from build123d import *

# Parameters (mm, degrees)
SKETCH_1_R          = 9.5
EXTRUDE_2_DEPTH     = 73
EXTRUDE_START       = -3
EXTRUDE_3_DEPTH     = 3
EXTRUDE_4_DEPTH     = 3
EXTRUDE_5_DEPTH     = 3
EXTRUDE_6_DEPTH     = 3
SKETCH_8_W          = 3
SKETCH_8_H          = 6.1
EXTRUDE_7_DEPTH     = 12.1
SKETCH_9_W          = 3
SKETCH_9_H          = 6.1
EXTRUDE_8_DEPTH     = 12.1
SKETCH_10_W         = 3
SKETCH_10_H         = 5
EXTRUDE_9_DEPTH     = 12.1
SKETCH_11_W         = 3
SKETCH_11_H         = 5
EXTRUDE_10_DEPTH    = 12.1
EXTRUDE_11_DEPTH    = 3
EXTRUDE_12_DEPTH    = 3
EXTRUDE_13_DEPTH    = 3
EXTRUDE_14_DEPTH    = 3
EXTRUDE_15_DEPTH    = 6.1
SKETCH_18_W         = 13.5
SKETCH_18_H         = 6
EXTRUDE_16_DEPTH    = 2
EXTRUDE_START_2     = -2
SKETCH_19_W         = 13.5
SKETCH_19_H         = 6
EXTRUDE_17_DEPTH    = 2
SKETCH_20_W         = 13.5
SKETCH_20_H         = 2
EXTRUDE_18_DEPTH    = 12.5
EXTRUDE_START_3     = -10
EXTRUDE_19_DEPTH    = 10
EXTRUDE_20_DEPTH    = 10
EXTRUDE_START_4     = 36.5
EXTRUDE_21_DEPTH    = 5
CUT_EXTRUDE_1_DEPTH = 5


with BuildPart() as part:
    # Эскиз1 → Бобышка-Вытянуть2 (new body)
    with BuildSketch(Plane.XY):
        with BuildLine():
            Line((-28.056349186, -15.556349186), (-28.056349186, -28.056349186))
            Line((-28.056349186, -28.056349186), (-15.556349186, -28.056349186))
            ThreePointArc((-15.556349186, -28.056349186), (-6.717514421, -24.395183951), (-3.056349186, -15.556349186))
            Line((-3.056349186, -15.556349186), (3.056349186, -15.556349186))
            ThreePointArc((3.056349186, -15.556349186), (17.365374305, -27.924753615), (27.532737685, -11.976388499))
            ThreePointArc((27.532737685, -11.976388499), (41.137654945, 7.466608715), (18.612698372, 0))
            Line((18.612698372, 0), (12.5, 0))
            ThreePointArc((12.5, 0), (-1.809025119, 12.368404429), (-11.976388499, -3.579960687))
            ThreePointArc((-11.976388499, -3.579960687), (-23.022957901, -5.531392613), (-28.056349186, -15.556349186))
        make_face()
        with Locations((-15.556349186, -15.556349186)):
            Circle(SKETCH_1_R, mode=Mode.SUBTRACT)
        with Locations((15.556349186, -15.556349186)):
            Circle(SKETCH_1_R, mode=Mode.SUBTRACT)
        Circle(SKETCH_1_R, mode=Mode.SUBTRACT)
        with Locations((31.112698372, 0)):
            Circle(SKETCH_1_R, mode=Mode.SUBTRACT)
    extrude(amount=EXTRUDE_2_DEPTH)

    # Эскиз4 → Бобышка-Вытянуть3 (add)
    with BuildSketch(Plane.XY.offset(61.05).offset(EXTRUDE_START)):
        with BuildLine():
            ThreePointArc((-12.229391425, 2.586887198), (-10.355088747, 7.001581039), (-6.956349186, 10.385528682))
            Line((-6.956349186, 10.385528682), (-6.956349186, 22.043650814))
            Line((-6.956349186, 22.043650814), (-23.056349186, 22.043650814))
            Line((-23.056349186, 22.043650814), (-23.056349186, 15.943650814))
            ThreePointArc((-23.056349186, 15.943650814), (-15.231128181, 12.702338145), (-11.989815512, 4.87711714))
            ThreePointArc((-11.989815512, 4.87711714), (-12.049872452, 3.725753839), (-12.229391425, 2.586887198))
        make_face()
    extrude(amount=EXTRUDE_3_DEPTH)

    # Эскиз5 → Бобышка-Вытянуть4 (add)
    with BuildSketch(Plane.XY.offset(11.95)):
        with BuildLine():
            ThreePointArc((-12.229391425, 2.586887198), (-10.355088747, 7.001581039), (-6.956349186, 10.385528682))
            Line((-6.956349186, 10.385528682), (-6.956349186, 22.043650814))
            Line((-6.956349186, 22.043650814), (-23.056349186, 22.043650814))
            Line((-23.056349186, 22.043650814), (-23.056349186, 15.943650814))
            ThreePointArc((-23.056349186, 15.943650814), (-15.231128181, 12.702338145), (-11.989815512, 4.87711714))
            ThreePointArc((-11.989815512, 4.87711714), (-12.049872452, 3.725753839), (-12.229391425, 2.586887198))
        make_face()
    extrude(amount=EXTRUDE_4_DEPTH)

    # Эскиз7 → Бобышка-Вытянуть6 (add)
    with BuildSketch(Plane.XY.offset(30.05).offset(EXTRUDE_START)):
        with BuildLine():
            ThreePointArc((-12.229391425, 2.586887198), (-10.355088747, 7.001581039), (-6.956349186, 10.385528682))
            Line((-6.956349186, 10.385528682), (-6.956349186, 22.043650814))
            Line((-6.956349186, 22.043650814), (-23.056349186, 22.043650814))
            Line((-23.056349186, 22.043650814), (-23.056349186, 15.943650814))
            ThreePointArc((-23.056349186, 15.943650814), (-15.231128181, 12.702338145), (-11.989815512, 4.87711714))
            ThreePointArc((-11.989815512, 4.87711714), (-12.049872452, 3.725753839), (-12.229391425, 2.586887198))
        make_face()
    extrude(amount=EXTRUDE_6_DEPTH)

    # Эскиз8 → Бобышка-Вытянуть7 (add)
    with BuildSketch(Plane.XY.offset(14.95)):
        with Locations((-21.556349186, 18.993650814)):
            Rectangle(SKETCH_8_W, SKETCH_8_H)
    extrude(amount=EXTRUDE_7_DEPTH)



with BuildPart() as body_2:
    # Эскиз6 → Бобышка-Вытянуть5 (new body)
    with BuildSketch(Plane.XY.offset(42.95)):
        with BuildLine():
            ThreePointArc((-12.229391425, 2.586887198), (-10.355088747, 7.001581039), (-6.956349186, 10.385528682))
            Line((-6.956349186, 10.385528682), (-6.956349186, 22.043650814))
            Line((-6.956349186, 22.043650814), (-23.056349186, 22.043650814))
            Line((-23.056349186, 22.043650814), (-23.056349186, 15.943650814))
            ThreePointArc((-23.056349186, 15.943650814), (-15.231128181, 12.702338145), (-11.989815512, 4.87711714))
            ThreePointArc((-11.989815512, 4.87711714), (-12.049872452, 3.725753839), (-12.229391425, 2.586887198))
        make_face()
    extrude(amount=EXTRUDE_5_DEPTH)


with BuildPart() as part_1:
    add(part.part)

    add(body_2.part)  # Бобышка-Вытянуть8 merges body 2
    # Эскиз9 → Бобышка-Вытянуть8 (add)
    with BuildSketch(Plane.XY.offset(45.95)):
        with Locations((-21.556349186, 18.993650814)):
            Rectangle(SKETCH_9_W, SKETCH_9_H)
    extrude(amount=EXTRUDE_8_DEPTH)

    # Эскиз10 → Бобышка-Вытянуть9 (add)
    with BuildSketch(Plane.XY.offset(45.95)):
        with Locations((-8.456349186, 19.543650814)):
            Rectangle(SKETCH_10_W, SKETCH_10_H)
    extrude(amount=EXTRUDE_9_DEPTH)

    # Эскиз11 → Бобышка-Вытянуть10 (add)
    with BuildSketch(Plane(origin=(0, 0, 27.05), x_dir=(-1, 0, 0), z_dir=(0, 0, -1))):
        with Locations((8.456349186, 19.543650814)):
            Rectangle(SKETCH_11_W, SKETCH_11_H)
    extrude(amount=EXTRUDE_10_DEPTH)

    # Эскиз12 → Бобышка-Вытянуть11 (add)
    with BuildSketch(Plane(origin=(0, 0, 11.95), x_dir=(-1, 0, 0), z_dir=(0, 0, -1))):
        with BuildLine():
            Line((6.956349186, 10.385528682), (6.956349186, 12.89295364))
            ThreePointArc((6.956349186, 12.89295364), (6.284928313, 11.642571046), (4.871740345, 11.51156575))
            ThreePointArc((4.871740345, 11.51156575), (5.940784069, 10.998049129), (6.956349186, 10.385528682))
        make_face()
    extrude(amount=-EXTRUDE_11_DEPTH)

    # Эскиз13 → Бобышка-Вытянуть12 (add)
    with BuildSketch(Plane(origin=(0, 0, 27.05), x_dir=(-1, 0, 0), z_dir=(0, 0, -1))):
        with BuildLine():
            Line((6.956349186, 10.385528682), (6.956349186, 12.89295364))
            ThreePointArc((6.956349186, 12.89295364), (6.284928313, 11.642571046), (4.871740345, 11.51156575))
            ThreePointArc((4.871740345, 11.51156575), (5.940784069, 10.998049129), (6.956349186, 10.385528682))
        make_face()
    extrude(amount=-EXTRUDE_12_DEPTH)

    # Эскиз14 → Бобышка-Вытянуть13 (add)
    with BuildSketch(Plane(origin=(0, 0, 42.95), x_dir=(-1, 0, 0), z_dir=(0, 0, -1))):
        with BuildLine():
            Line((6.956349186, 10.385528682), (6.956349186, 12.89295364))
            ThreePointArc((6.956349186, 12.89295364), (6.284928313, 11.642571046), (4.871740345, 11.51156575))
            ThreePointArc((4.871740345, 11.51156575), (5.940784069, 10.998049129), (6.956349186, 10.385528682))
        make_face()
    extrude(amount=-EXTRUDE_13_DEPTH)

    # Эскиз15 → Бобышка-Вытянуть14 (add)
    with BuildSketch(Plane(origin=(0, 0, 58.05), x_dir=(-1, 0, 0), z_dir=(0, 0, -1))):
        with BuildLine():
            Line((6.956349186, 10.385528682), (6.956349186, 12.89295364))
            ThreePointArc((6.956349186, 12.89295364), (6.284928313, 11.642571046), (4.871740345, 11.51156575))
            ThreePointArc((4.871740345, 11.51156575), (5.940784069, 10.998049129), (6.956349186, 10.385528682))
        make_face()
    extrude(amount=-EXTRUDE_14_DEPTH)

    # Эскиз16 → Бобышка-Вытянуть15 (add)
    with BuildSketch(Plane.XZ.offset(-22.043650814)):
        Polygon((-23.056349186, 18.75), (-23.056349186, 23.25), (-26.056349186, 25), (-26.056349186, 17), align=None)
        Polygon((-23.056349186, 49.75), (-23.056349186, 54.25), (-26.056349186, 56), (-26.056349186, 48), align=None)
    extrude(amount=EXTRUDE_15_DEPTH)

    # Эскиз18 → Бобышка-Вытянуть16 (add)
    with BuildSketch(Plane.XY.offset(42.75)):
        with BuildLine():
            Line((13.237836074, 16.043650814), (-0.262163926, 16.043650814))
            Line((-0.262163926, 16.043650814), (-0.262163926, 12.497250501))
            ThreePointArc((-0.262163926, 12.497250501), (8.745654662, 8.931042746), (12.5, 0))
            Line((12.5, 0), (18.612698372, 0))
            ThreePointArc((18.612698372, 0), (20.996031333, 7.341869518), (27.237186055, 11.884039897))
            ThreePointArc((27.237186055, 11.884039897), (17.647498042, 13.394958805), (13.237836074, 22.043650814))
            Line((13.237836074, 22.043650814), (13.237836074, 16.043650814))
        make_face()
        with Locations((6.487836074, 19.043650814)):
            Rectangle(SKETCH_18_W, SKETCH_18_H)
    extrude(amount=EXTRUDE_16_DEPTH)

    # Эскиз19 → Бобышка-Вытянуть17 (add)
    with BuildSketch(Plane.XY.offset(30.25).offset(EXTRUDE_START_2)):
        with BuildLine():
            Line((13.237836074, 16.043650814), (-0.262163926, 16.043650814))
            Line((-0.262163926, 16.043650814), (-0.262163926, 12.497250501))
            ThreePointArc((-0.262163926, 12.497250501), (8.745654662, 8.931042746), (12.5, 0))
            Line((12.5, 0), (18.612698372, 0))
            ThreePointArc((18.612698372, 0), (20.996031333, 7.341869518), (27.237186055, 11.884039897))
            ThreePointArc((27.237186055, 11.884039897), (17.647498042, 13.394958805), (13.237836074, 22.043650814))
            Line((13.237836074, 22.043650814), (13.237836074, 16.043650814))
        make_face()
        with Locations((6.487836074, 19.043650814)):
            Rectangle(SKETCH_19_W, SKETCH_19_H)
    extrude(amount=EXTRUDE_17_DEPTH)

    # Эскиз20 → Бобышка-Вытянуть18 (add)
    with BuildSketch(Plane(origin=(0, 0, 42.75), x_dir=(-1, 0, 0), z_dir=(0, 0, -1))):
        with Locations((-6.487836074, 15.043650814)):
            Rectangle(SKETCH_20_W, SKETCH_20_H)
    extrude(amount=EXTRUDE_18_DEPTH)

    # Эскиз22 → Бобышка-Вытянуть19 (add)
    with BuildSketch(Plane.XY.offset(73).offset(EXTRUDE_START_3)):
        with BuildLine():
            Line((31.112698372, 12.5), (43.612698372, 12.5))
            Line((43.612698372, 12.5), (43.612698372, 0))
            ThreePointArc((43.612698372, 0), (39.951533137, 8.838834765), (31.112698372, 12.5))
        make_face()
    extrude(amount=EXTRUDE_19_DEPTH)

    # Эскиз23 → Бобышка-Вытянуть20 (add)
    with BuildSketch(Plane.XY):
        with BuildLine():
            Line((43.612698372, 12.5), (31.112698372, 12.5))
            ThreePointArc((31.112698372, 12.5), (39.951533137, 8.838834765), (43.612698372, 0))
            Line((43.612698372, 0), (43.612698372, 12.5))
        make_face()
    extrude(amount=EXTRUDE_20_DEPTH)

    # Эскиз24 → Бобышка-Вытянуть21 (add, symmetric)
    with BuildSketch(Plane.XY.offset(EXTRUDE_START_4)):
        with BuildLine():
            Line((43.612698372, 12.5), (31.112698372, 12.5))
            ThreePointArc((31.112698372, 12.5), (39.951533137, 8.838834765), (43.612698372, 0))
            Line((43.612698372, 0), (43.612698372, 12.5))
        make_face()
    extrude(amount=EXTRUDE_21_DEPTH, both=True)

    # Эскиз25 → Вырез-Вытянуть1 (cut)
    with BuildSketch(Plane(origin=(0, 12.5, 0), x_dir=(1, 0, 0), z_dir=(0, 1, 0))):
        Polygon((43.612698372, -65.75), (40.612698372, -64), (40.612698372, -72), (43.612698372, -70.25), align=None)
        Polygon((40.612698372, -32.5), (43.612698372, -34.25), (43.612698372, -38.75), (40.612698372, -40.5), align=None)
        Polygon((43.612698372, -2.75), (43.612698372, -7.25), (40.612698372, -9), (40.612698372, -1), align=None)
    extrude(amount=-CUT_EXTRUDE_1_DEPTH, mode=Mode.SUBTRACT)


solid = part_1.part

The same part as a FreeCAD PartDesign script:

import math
import FreeCAD as App
import Part
import Sketcher

V = App.Vector


def add_polygon(sketch, points):
    """Adds a closed chain of lines whose ends are joined by coincident constraints."""
    first, n = sketch.GeometryCount, len(points)
    for a, b in zip(points, points[1:] + points[:1]):
        sketch.addGeometry(Part.LineSegment(App.Vector(*a, 0), App.Vector(*b, 0)), False)
    for i in range(n):
        sketch.addConstraint(Sketcher.Constraint("Coincident", first + i, 2, first + (i + 1) % n, 1))

doc = App.newDocument("Part")
body = doc.addObject("PartDesign::Body", "Body")

sketch1 = body.newObject("Sketcher::SketchObject", "Sketch")
sketch1.AttachmentSupport = (doc.getObject("XY_Plane"), [""])
sketch1.MapMode = "FlatFace"
sketch1.addGeometry(Part.LineSegment(V(-28, -16, 0), V(-28, -28, 0)), False)
sketch1.addGeometry(Part.LineSegment(V(-28, -28, 0), V(-16, -28, 0)), False)
sketch1.addGeometry(Part.ArcOfCircle(Part.Circle(V(-16, -16, 0), V(0, 0, 1), 12), math.radians(-90), math.radians(0)), False)
sketch1.addGeometry(Part.LineSegment(V(-3, -16, 0), V(3, -16, 0)), False)
sketch1.addGeometry(Part.ArcOfCircle(Part.Circle(V(16, -16, 0), V(0, 0, 1), 12), math.radians(180), math.radians(377)), False)
sketch1.addGeometry(Part.ArcOfCircle(Part.Circle(V(31, 0, 0), V(0, 0, 1), 12), math.radians(-107), math.radians(180)), False)
sketch1.addGeometry(Part.LineSegment(V(19, 0, 0), V(12, 0, 0)), False)
sketch1.addGeometry(Part.ArcOfCircle(Part.Circle(V(0, 0, 0), V(0, 0, 1), 12), math.radians(0), math.radians(197)), False)
sketch1.addGeometry(Part.ArcOfCircle(Part.Circle(V(-16, -16, 0), V(0, 0, 1), 12), math.radians(73), math.radians(180)), False)
sketch1.addGeometry(Part.Circle(V(-16, -16, 0), V(0, 0, 1), 10), False)
sketch1.addGeometry(Part.Circle(V(16, -16, 0), V(0, 0, 1), 10), False)
sketch1.addGeometry(Part.Circle(V(0, 0, 0), V(0, 0, 1), 10), False)
sketch1.addGeometry(Part.Circle(V(31, 0, 0), V(0, 0, 1), 10), False)
sketch1.addConstraint(Sketcher.Constraint("Coincident", 0, 2, 1, 1))
sketch1.addConstraint(Sketcher.Constraint("Tangent", 1, 2, 2, 1))
sketch1.addConstraint(Sketcher.Constraint("Coincident", 2, 2, 3, 1))
sketch1.addConstraint(Sketcher.Constraint("Coincident", 3, 2, 4, 1))
sketch1.addConstraint(Sketcher.Constraint("Coincident", 4, 2, 5, 1))
sketch1.addConstraint(Sketcher.Constraint("Coincident", 5, 2, 6, 1))
sketch1.addConstraint(Sketcher.Constraint("Coincident", 6, 2, 7, 1))
sketch1.addConstraint(Sketcher.Constraint("Coincident", 7, 2, 8, 1))
sketch1.addConstraint(Sketcher.Constraint("Tangent", 8, 2, 0, 1))
sketch1.addConstraint(Sketcher.Constraint("Vertical", 0))
sketch1.addConstraint(Sketcher.Constraint("Horizontal", 1))
sketch1.addConstraint(Sketcher.Constraint("Horizontal", 3))
sketch1.addConstraint(Sketcher.Constraint("Horizontal", 6))
sketch1.addConstraint(Sketcher.Constraint("Coincident", 7, 3, -1, 1))
sketch1.addConstraint(Sketcher.Constraint("Coincident", 11, 3, -1, 1))
sketch1.addConstraint(Sketcher.Constraint("Coincident", 8, 3, 2, 3))
sketch1.addConstraint(Sketcher.Constraint("Coincident", 9, 3, 2, 3))
sketch1.addConstraint(Sketcher.Constraint("Coincident", 10, 3, 4, 3))
sketch1.addConstraint(Sketcher.Constraint("Coincident", 12, 3, 5, 3))
sketch1.addConstraint(Sketcher.Constraint("Equal", 2, 4))
sketch1.addConstraint(Sketcher.Constraint("Equal", 4, 5))
sketch1.addConstraint(Sketcher.Constraint("Equal", 5, 7))
sketch1.addConstraint(Sketcher.Constraint("Equal", 7, 8))
sketch1.addConstraint(Sketcher.Constraint("Equal", 9, 10))
sketch1.addConstraint(Sketcher.Constraint("Equal", 10, 11))
sketch1.addConstraint(Sketcher.Constraint("Equal", 11, 12))
sketch1.addConstraint(Sketcher.Constraint("Symmetric", 2, 3, 4, 3, -2))
sketch1.addConstraint(Sketcher.Constraint("PointOnObject", 5, 3, -1))
sketch1.addConstraint(Sketcher.Constraint("PointOnObject", 5, 2, -1))
sketch1.addConstraint(Sketcher.Constraint("Horizontal", 10, 3, 2, 2))
sketch1.addConstraint(Sketcher.Constraint("Equal", 3, 6))
sketch1.addConstraint(Sketcher.Constraint("Diameter", 9, 19.0))
sketch1.addConstraint(Sketcher.Constraint("Radius", 2, 12.5))
sketch1.addConstraint(Sketcher.Constraint("DistanceX", 3, 1, 3, 2, 6.112698))
sketch1.addConstraint(Sketcher.Constraint("DistanceY", 2, 3, -1, 1, 15.556349))
pad1 = body.newObject("PartDesign::Pad", "Pad")
pad1.Profile = sketch1
pad1.Length = 73

sketch2 = body.newObject("Sketcher::SketchObject", "Sketch001")
sketch2.AttachmentSupport = (doc.getObject("XY_Plane"), [""])
sketch2.MapMode = "FlatFace"
sketch2.AttachmentOffset = App.Placement(V(0, 0, 58.05), App.Rotation())
sketch2.addGeometry(Part.ArcOfCircle(Part.Circle(V(0, 0, 0), V(0, 0, 1), 12.5), math.radians(124), math.radians(168)), False)
sketch2.addGeometry(Part.LineSegment(V(-7, 10.4, 0), V(-7, 22, 0)), False)
sketch2.addGeometry(Part.LineSegment(V(-7, 22, 0), V(-23.1, 22, 0)), False)
sketch2.addGeometry(Part.LineSegment(V(-23.1, 22, 0), V(-23.1, 15.9, 0)), False)
sketch2.addGeometry(Part.ArcOfCircle(Part.Circle(V(-23.1, 4.9, 0), V(0, 0, 1), 11.1), math.radians(0), math.radians(90)), False)
sketch2.addGeometry(Part.ArcOfCircle(Part.Circle(V(-23.1, 4.9, 0), V(0, 0, 1), 11.1), math.radians(-11.94), math.radians(0)), False)
sketch2.addConstraint(Sketcher.Constraint("Coincident", 0, 1, 1, 1))
sketch2.addConstraint(Sketcher.Constraint("Coincident", 1, 2, 2, 1))
sketch2.addConstraint(Sketcher.Constraint("Coincident", 2, 2, 3, 1))
sketch2.addConstraint(Sketcher.Constraint("Coincident", 3, 2, 4, 2))
sketch2.addConstraint(Sketcher.Constraint("Tangent", 4, 1, 5, 2))
sketch2.addConstraint(Sketcher.Constraint("Tangent", 5, 1, 0, 2))
sketch2.addConstraint(Sketcher.Constraint("Vertical", 1))
sketch2.addConstraint(Sketcher.Constraint("Horizontal", 2))
sketch2.addConstraint(Sketcher.Constraint("Vertical", 3))
sketch2.addConstraint(Sketcher.Constraint("Coincident", 0, 3, -1, 1))
sketch2.addConstraint(Sketcher.Constraint("Equal", 4, 5))
sketch2.addConstraint(Sketcher.Constraint("Horizontal", 5, 3, 4, 1))
sketch2.addConstraint(Sketcher.Constraint("Vertical", 5, 3, 2, 2))
sketch2.addConstraint(Sketcher.Constraint("Radius", 0, 12.5))
sketch2.addConstraint(Sketcher.Constraint("DistanceX", 2, 2, 2, 1, 16.1))
sketch2.addConstraint(Sketcher.Constraint("DistanceY", 3, 2, 3, 1, 6.1))
sketch2.addConstraint(Sketcher.Constraint("Radius", 4, 11.066534))
sketch2.addConstraint(Sketcher.Constraint("DistanceY", 1, 1, 1, 2, 11.658122))
pad2 = body.newObject("PartDesign::Pad", "Pad001")
pad2.Profile = sketch2
pad2.Length = 3

sketch3 = body.newObject("Sketcher::SketchObject", "Sketch002")
sketch3.AttachmentSupport = (doc.getObject("XY_Plane"), [""])
sketch3.MapMode = "FlatFace"
sketch3.AttachmentOffset = App.Placement(V(0, 0, 11.95), App.Rotation())
sketch3.addGeometry(Part.ArcOfCircle(Part.Circle(V(0, 0, 0), V(0, 0, 1), 12.5), math.radians(124), math.radians(168)), False)
sketch3.addGeometry(Part.LineSegment(V(-7, 10.4, 0), V(-7, 22, 0)), False)
sketch3.addGeometry(Part.LineSegment(V(-7, 22, 0), V(-23.1, 22, 0)), False)
sketch3.addGeometry(Part.LineSegment(V(-23.1, 22, 0), V(-23.1, 15.9, 0)), False)
sketch3.addGeometry(Part.ArcOfCircle(Part.Circle(V(-23.1, 4.9, 0), V(0, 0, 1), 11.1), math.radians(0), math.radians(90)), False)
sketch3.addGeometry(Part.ArcOfCircle(Part.Circle(V(-23.1, 4.9, 0), V(0, 0, 1), 11.1), math.radians(-11.94), math.radians(0)), False)
sketch3.addConstraint(Sketcher.Constraint("Coincident", 0, 1, 1, 1))
sketch3.addConstraint(Sketcher.Constraint("Coincident", 1, 2, 2, 1))
sketch3.addConstraint(Sketcher.Constraint("Coincident", 2, 2, 3, 1))
sketch3.addConstraint(Sketcher.Constraint("Coincident", 3, 2, 4, 2))
sketch3.addConstraint(Sketcher.Constraint("Tangent", 4, 1, 5, 2))
sketch3.addConstraint(Sketcher.Constraint("Tangent", 5, 1, 0, 2))
sketch3.addConstraint(Sketcher.Constraint("Vertical", 1))
sketch3.addConstraint(Sketcher.Constraint("Horizontal", 2))
sketch3.addConstraint(Sketcher.Constraint("Vertical", 3))
sketch3.addConstraint(Sketcher.Constraint("Coincident", 0, 3, -1, 1))
sketch3.addConstraint(Sketcher.Constraint("Equal", 4, 5))
sketch3.addConstraint(Sketcher.Constraint("Horizontal", 5, 3, 4, 1))
sketch3.addConstraint(Sketcher.Constraint("Vertical", 5, 3, 2, 2))
sketch3.addConstraint(Sketcher.Constraint("Radius", 0, 12.5))
sketch3.addConstraint(Sketcher.Constraint("DistanceX", 2, 2, 2, 1, 16.1))
sketch3.addConstraint(Sketcher.Constraint("DistanceY", 3, 2, 3, 1, 6.1))
sketch3.addConstraint(Sketcher.Constraint("Radius", 4, 11.066534))
sketch3.addConstraint(Sketcher.Constraint("DistanceY", 1, 1, 1, 2, 11.658122))
pad3 = body.newObject("PartDesign::Pad", "Pad002")
pad3.Profile = sketch3
pad3.Length = 3

sketch4 = body.newObject("Sketcher::SketchObject", "Sketch003")
sketch4.AttachmentSupport = (doc.getObject("XY_Plane"), [""])
sketch4.MapMode = "FlatFace"
sketch4.AttachmentOffset = App.Placement(V(0, 0, 27.05), App.Rotation())
sketch4.addGeometry(Part.ArcOfCircle(Part.Circle(V(0, 0, 0), V(0, 0, 1), 12.5), math.radians(124), math.radians(168)), False)
sketch4.addGeometry(Part.LineSegment(V(-7, 10.4, 0), V(-7, 22, 0)), False)
sketch4.addGeometry(Part.LineSegment(V(-7, 22, 0), V(-23.1, 22, 0)), False)
sketch4.addGeometry(Part.LineSegment(V(-23.1, 22, 0), V(-23.1, 15.9, 0)), False)
sketch4.addGeometry(Part.ArcOfCircle(Part.Circle(V(-23.1, 4.9, 0), V(0, 0, 1), 11.1), math.radians(0), math.radians(90)), False)
sketch4.addGeometry(Part.ArcOfCircle(Part.Circle(V(-23.1, 4.9, 0), V(0, 0, 1), 11.1), math.radians(-11.94), math.radians(0)), False)
sketch4.addConstraint(Sketcher.Constraint("Coincident", 0, 1, 1, 1))
sketch4.addConstraint(Sketcher.Constraint("Coincident", 1, 2, 2, 1))
sketch4.addConstraint(Sketcher.Constraint("Coincident", 2, 2, 3, 1))
sketch4.addConstraint(Sketcher.Constraint("Coincident", 3, 2, 4, 2))
sketch4.addConstraint(Sketcher.Constraint("Tangent", 4, 1, 5, 2))
sketch4.addConstraint(Sketcher.Constraint("Tangent", 5, 1, 0, 2))
sketch4.addConstraint(Sketcher.Constraint("Vertical", 1))
sketch4.addConstraint(Sketcher.Constraint("Horizontal", 2))
sketch4.addConstraint(Sketcher.Constraint("Vertical", 3))
sketch4.addConstraint(Sketcher.Constraint("Coincident", 0, 3, -1, 1))
sketch4.addConstraint(Sketcher.Constraint("Equal", 4, 5))
sketch4.addConstraint(Sketcher.Constraint("Horizontal", 5, 3, 4, 1))
sketch4.addConstraint(Sketcher.Constraint("Vertical", 5, 3, 2, 2))
sketch4.addConstraint(Sketcher.Constraint("Radius", 0, 12.5))
sketch4.addConstraint(Sketcher.Constraint("DistanceX", 2, 2, 2, 1, 16.1))
sketch4.addConstraint(Sketcher.Constraint("DistanceY", 3, 2, 3, 1, 6.1))
sketch4.addConstraint(Sketcher.Constraint("Radius", 4, 11.066534))
sketch4.addConstraint(Sketcher.Constraint("DistanceY", 1, 1, 1, 2, 11.658122))
pad4 = body.newObject("PartDesign::Pad", "Pad003")
pad4.Profile = sketch4
pad4.Length = 3

sketch5 = body.newObject("Sketcher::SketchObject", "Sketch004")
sketch5.AttachmentSupport = (doc.getObject("XY_Plane"), [""])
sketch5.MapMode = "FlatFace"
sketch5.AttachmentOffset = App.Placement(V(0, 0, 14.95), App.Rotation())
add_polygon(sketch5, [(-23.1, 22), (-23.1, 15.9), (-20.1, 15.9), (-20.1, 22)])
sketch5.addConstraint(Sketcher.Constraint("Vertical", 0))
sketch5.addConstraint(Sketcher.Constraint("Horizontal", 1))
sketch5.addConstraint(Sketcher.Constraint("Vertical", 2))
sketch5.addConstraint(Sketcher.Constraint("Horizontal", 3))
sketch5.addConstraint(Sketcher.Constraint("DistanceX", 1, 1, 1, 2, 3.0))
sketch5.addConstraint(Sketcher.Constraint("DistanceY", 0, 2, 0, 1, 6.1))
sketch5.addConstraint(Sketcher.Constraint("DistanceX", 0, 2, -1, 1, 23.056349))
sketch5.addConstraint(Sketcher.Constraint("DistanceY", -1, 1, 0, 2, 15.943651))
pad5 = body.newObject("PartDesign::Pad", "Pad004")
pad5.Profile = sketch5
pad5.Length = 12.1
body2 = doc.addObject("PartDesign::Body", "Body001")

sketch6 = body2.newObject("Sketcher::SketchObject", "Sketch005")
sketch6.AttachmentSupport = (doc.getObject("XY_Plane001"), [""])
sketch6.MapMode = "FlatFace"
sketch6.AttachmentOffset = App.Placement(V(0, 0, 42.95), App.Rotation())
sketch6.addGeometry(Part.ArcOfCircle(Part.Circle(V(0, 0, 0), V(0, 0, 1), 12.5), math.radians(124), math.radians(168)), False)
sketch6.addGeometry(Part.LineSegment(V(-7, 10.4, 0), V(-7, 22, 0)), False)
sketch6.addGeometry(Part.LineSegment(V(-7, 22, 0), V(-23.1, 22, 0)), False)
sketch6.addGeometry(Part.LineSegment(V(-23.1, 22, 0), V(-23.1, 15.9, 0)), False)
sketch6.addGeometry(Part.ArcOfCircle(Part.Circle(V(-23.1, 4.9, 0), V(0, 0, 1), 11.1), math.radians(0), math.radians(90)), False)
sketch6.addGeometry(Part.ArcOfCircle(Part.Circle(V(-23.1, 4.9, 0), V(0, 0, 1), 11.1), math.radians(-11.94), math.radians(0)), False)
sketch6.addConstraint(Sketcher.Constraint("Coincident", 0, 1, 1, 1))
sketch6.addConstraint(Sketcher.Constraint("Coincident", 1, 2, 2, 1))
sketch6.addConstraint(Sketcher.Constraint("Coincident", 2, 2, 3, 1))
sketch6.addConstraint(Sketcher.Constraint("Coincident", 3, 2, 4, 2))
sketch6.addConstraint(Sketcher.Constraint("Tangent", 4, 1, 5, 2))
sketch6.addConstraint(Sketcher.Constraint("Tangent", 5, 1, 0, 2))
sketch6.addConstraint(Sketcher.Constraint("Vertical", 1))
sketch6.addConstraint(Sketcher.Constraint("Horizontal", 2))
sketch6.addConstraint(Sketcher.Constraint("Vertical", 3))
sketch6.addConstraint(Sketcher.Constraint("Coincident", 0, 3, -1, 1))
sketch6.addConstraint(Sketcher.Constraint("Equal", 4, 5))
sketch6.addConstraint(Sketcher.Constraint("Horizontal", 5, 3, 4, 1))
sketch6.addConstraint(Sketcher.Constraint("Vertical", 5, 3, 2, 2))
sketch6.addConstraint(Sketcher.Constraint("Radius", 0, 12.5))
sketch6.addConstraint(Sketcher.Constraint("DistanceX", 2, 2, 2, 1, 16.1))
sketch6.addConstraint(Sketcher.Constraint("DistanceY", 3, 2, 3, 1, 6.1))
sketch6.addConstraint(Sketcher.Constraint("Radius", 4, 11.066534))
sketch6.addConstraint(Sketcher.Constraint("DistanceY", 1, 1, 1, 2, 11.658122))
pad6 = body2.newObject("PartDesign::Pad", "Pad005")
pad6.Profile = sketch6
pad6.Length = 3
doc.recompute()

boolean = body.newObject("PartDesign::Boolean", "Boolean")
boolean.Type = "Fuse"
boolean.addObjects([body2])

sketch7 = body.newObject("Sketcher::SketchObject", "Sketch006")
sketch7.AttachmentSupport = (doc.getObject("XY_Plane"), [""])
sketch7.MapMode = "FlatFace"
sketch7.AttachmentOffset = App.Placement(V(0, 0, 45.95), App.Rotation())
add_polygon(sketch7, [(-23.1, 22), (-23.1, 15.9), (-20.1, 15.9), (-20.1, 22)])
sketch7.addConstraint(Sketcher.Constraint("Vertical", 0))
sketch7.addConstraint(Sketcher.Constraint("Horizontal", 1))
sketch7.addConstraint(Sketcher.Constraint("Vertical", 2))
sketch7.addConstraint(Sketcher.Constraint("Horizontal", 3))
sketch7.addConstraint(Sketcher.Constraint("DistanceX", 1, 1, 1, 2, 3.0))
sketch7.addConstraint(Sketcher.Constraint("DistanceY", 0, 2, 0, 1, 6.1))
sketch7.addConstraint(Sketcher.Constraint("DistanceX", 0, 2, -1, 1, 23.056349))
sketch7.addConstraint(Sketcher.Constraint("DistanceY", -1, 1, 0, 2, 15.943651))
pad7 = body.newObject("PartDesign::Pad", "Pad006")
pad7.Profile = sketch7
pad7.Length = 12.1

sketch8 = body.newObject("Sketcher::SketchObject", "Sketch007")
sketch8.AttachmentSupport = (doc.getObject("XY_Plane"), [""])
sketch8.MapMode = "FlatFace"
sketch8.AttachmentOffset = App.Placement(V(0, 0, 45.95), App.Rotation())
add_polygon(sketch8, [(-10, 22), (-10, 17), (-7, 17), (-7, 22)])
sketch8.addConstraint(Sketcher.Constraint("Vertical", 0))
sketch8.addConstraint(Sketcher.Constraint("Horizontal", 1))
sketch8.addConstraint(Sketcher.Constraint("Vertical", 2))
sketch8.addConstraint(Sketcher.Constraint("Horizontal", 3))
sketch8.addConstraint(Sketcher.Constraint("DistanceX", 1, 1, 1, 2, 3.0))
sketch8.addConstraint(Sketcher.Constraint("DistanceY", 0, 2, 0, 1, 5.0))
sketch8.addConstraint(Sketcher.Constraint("DistanceX", 0, 2, -1, 1, 9.956349))
sketch8.addConstraint(Sketcher.Constraint("DistanceY", -1, 1, 0, 2, 17.043651))
pad8 = body.newObject("PartDesign::Pad", "Pad007")
pad8.Profile = sketch8
pad8.Length = 12.1

sketch9 = body.newObject("Sketcher::SketchObject", "Sketch008")
sketch9.AttachmentSupport = (doc.getObject("XY_Plane"), [""])
sketch9.MapMode = "FlatFace"
sketch9.AttachmentOffset = App.Placement(V(0, 0, 27.05), App.Rotation())
add_polygon(sketch9, [(-7, 22), (-7, 17), (-10, 17), (-10, 22)])
sketch9.addConstraint(Sketcher.Constraint("Vertical", 0))
sketch9.addConstraint(Sketcher.Constraint("Horizontal", 1))
sketch9.addConstraint(Sketcher.Constraint("Vertical", 2))
sketch9.addConstraint(Sketcher.Constraint("Horizontal", 3))
sketch9.addConstraint(Sketcher.Constraint("DistanceX", 1, 2, 1, 1, 3.0))
sketch9.addConstraint(Sketcher.Constraint("DistanceY", 0, 2, 0, 1, 5.0))
sketch9.addConstraint(Sketcher.Constraint("DistanceX", 0, 2, -1, 1, 6.956349))
sketch9.addConstraint(Sketcher.Constraint("DistanceY", -1, 1, 0, 2, 17.043651))
pad9 = body.newObject("PartDesign::Pad", "Pad008")
pad9.Profile = sketch9
pad9.Length = 12.1
pad9.Reversed = True

sketch10 = body.newObject("Sketcher::SketchObject", "Sketch009")
sketch10.AttachmentSupport = (doc.getObject("XY_Plane"), [""])
sketch10.MapMode = "FlatFace"
sketch10.AttachmentOffset = App.Placement(V(0, 0, 11.95), App.Rotation())
sketch10.addGeometry(Part.LineSegment(V(-7, 10.4, 0), V(-7, 12.9, 0)), False)
sketch10.addGeometry(Part.ArcOfCircle(Part.Circle(V(-5.5, 12.9, 0), V(0, 0, 1), 1.5), math.radians(180), math.radians(293)), False)
sketch10.addGeometry(Part.ArcOfCircle(Part.Circle(V(0, 0, 0), V(0, 0, 1), 12.5), math.radians(112.94), math.radians(123.81)), False)
sketch10.addConstraint(Sketcher.Constraint("Tangent", 0, 2, 1, 1))
sketch10.addConstraint(Sketcher.Constraint("Tangent", 1, 2, 2, 1))
sketch10.addConstraint(Sketcher.Constraint("Coincident", 2, 2, 0, 1))
sketch10.addConstraint(Sketcher.Constraint("Vertical", 0))
sketch10.addConstraint(Sketcher.Constraint("Coincident", 2, 3, -1, 1))
sketch10.addConstraint(Sketcher.Constraint("Radius", 1, 1.5))
sketch10.addConstraint(Sketcher.Constraint("Radius", 2, 12.5))
sketch10.addConstraint(Sketcher.Constraint("DistanceY", 0, 1, 0, 2, 2.507425))
pad10 = body.newObject("PartDesign::Pad", "Pad009")
pad10.Profile = sketch10
pad10.Length = 3

sketch11 = body.newObject("Sketcher::SketchObject", "Sketch010")
sketch11.AttachmentSupport = (doc.getObject("XY_Plane"), [""])
sketch11.MapMode = "FlatFace"
sketch11.AttachmentOffset = App.Placement(V(0, 0, 27.05), App.Rotation())
sketch11.addGeometry(Part.LineSegment(V(-7, 10.4, 0), V(-7, 12.9, 0)), False)
sketch11.addGeometry(Part.ArcOfCircle(Part.Circle(V(-5.5, 12.9, 0), V(0, 0, 1), 1.5), math.radians(180), math.radians(293)), False)
sketch11.addGeometry(Part.ArcOfCircle(Part.Circle(V(0, 0, 0), V(0, 0, 1), 12.5), math.radians(112.94), math.radians(123.81)), False)
sketch11.addConstraint(Sketcher.Constraint("Tangent", 0, 2, 1, 1))
sketch11.addConstraint(Sketcher.Constraint("Tangent", 1, 2, 2, 1))
sketch11.addConstraint(Sketcher.Constraint("Coincident", 2, 2, 0, 1))
sketch11.addConstraint(Sketcher.Constraint("Vertical", 0))
sketch11.addConstraint(Sketcher.Constraint("Coincident", 2, 3, -1, 1))
sketch11.addConstraint(Sketcher.Constraint("Radius", 1, 1.5))
sketch11.addConstraint(Sketcher.Constraint("Radius", 2, 12.5))
sketch11.addConstraint(Sketcher.Constraint("DistanceY", 0, 1, 0, 2, 2.507425))
pad11 = body.newObject("PartDesign::Pad", "Pad010")
pad11.Profile = sketch11
pad11.Length = 3

sketch12 = body.newObject("Sketcher::SketchObject", "Sketch011")
sketch12.AttachmentSupport = (doc.getObject("XY_Plane"), [""])
sketch12.MapMode = "FlatFace"
sketch12.AttachmentOffset = App.Placement(V(0, 0, 42.95), App.Rotation())
sketch12.addGeometry(Part.LineSegment(V(-7, 10.4, 0), V(-7, 12.9, 0)), False)
sketch12.addGeometry(Part.ArcOfCircle(Part.Circle(V(-5.5, 12.9, 0), V(0, 0, 1), 1.5), math.radians(180), math.radians(293)), False)
sketch12.addGeometry(Part.ArcOfCircle(Part.Circle(V(0, 0, 0), V(0, 0, 1), 12.5), math.radians(112.94), math.radians(123.81)), False)
sketch12.addConstraint(Sketcher.Constraint("Tangent", 0, 2, 1, 1))
sketch12.addConstraint(Sketcher.Constraint("Tangent", 1, 2, 2, 1))
sketch12.addConstraint(Sketcher.Constraint("Coincident", 2, 2, 0, 1))
sketch12.addConstraint(Sketcher.Constraint("Vertical", 0))
sketch12.addConstraint(Sketcher.Constraint("Coincident", 2, 3, -1, 1))
sketch12.addConstraint(Sketcher.Constraint("Radius", 1, 1.5))
sketch12.addConstraint(Sketcher.Constraint("Radius", 2, 12.5))
sketch12.addConstraint(Sketcher.Constraint("DistanceY", 0, 1, 0, 2, 2.507425))
pad12 = body.newObject("PartDesign::Pad", "Pad011")
pad12.Profile = sketch12
pad12.Length = 3

sketch13 = body.newObject("Sketcher::SketchObject", "Sketch012")
sketch13.AttachmentSupport = (doc.getObject("XY_Plane"), [""])
sketch13.MapMode = "FlatFace"
sketch13.AttachmentOffset = App.Placement(V(0, 0, 58.05), App.Rotation())
sketch13.addGeometry(Part.LineSegment(V(-7, 10.4, 0), V(-7, 12.9, 0)), False)
sketch13.addGeometry(Part.ArcOfCircle(Part.Circle(V(-5.5, 12.9, 0), V(0, 0, 1), 1.5), math.radians(180), math.radians(293)), False)
sketch13.addGeometry(Part.ArcOfCircle(Part.Circle(V(0, 0, 0), V(0, 0, 1), 12.5), math.radians(112.94), math.radians(123.81)), False)
sketch13.addConstraint(Sketcher.Constraint("Tangent", 0, 2, 1, 1))
sketch13.addConstraint(Sketcher.Constraint("Tangent", 1, 2, 2, 1))
sketch13.addConstraint(Sketcher.Constraint("Coincident", 2, 2, 0, 1))
sketch13.addConstraint(Sketcher.Constraint("Vertical", 0))
sketch13.addConstraint(Sketcher.Constraint("Coincident", 2, 3, -1, 1))
sketch13.addConstraint(Sketcher.Constraint("Radius", 1, 1.5))
sketch13.addConstraint(Sketcher.Constraint("Radius", 2, 12.5))
sketch13.addConstraint(Sketcher.Constraint("DistanceY", 0, 1, 0, 2, 2.507425))
pad13 = body.newObject("PartDesign::Pad", "Pad012")
pad13.Profile = sketch13
pad13.Length = 3

sketch14 = body.newObject("Sketcher::SketchObject", "Sketch013")
sketch14.AttachmentSupport = (doc.getObject("XZ_Plane"), [""])
sketch14.MapMode = "FlatFace"
sketch14.AttachmentOffset = App.Placement(V(0, 0, -22.043651), App.Rotation())
add_polygon(sketch14, [(-23.1, 18.8), (-23.1, 23.2), (-26.1, 25), (-26.1, 17)])
add_polygon(sketch14, [(-23.1, 49.8), (-23.1, 54.2), (-26.1, 56), (-26.1, 48)])
sketch14.addConstraint(Sketcher.Constraint("Vertical", 0))
sketch14.addConstraint(Sketcher.Constraint("Vertical", 2))
sketch14.addConstraint(Sketcher.Constraint("Vertical", 4))
sketch14.addConstraint(Sketcher.Constraint("Vertical", 6))
sketch14.addConstraint(Sketcher.Constraint("Parallel", 1, 5))
sketch14.addConstraint(Sketcher.Constraint("Parallel", 3, 7))
sketch14.addConstraint(Sketcher.Constraint("Vertical", 3, 2, 4, 2))
sketch14.addConstraint(Sketcher.Constraint("Vertical", 2, 2, 5, 2))
sketch14.addConstraint(Sketcher.Constraint("Equal", 0, 4))
sketch14.addConstraint(Sketcher.Constraint("Equal", 1, 3))
sketch14.addConstraint(Sketcher.Constraint("DistanceY", 2, 2, 2, 1, 8.0))
sketch14.addConstraint(Sketcher.Constraint("DistanceY", 0, 1, 0, 2, 4.5))
sketch14.addConstraint(Sketcher.Constraint("DistanceY", -1, 1, 1, 2, 25.0))
sketch14.addConstraint(Sketcher.Constraint("DistanceY", -1, 1, 5, 2, 56.0))
sketch14.addConstraint(Sketcher.Constraint("DistanceX", 1, 2, 0, 2, 3.0))
sketch14.addConstraint(Sketcher.Constraint("DistanceX", 0, 2, -1, 1, 23.056349))
pad14 = body.newObject("PartDesign::Pad", "Pad013")
pad14.Profile = sketch14
pad14.Length = 6.1

sketch15 = body.newObject("Sketcher::SketchObject", "Sketch014")
sketch15.AttachmentSupport = (doc.getObject("XY_Plane"), [""])
sketch15.MapMode = "FlatFace"
sketch15.AttachmentOffset = App.Placement(V(0, 0, 42.75), App.Rotation())
sketch15.addGeometry(Part.ArcOfCircle(Part.Circle(V(0, 0, 0), V(0, 0, 1), 13), math.radians(0), math.radians(91)), False)
sketch15.addGeometry(Part.LineSegment(V(12, 0, 0), V(19, 0, 0)), False)
sketch15.addGeometry(Part.ArcOfCircle(Part.Circle(V(31, 0, 0), V(0, 0, 1), 12), math.radians(108), math.radians(180)), False)
sketch15.addGeometry(Part.ArcOfCircle(Part.Circle(V(24, 22, 0), V(0, 0, 1), 11), math.radians(-180), math.radians(-72)), False)
sketch15.addGeometry(Part.LineSegment(V(13, 22, 0), V(0, 22, 0)), False)
sketch15.addGeometry(Part.LineSegment(V(0, 22, 0), V(0, 12, 0)), False)
sketch15.addConstraint(Sketcher.Constraint("Coincident", 0, 1, 1, 1))
sketch15.addConstraint(Sketcher.Constraint("Coincident", 1, 2, 2, 2))
sketch15.addConstraint(Sketcher.Constraint("Tangent", 2, 1, 3, 2))
sketch15.addConstraint(Sketcher.Constraint("Coincident", 3, 1, 4, 1))
sketch15.addConstraint(Sketcher.Constraint("Coincident", 4, 2, 5, 1))
sketch15.addConstraint(Sketcher.Constraint("Coincident", 5, 2, 0, 2))
sketch15.addConstraint(Sketcher.Constraint("Horizontal", 1))
sketch15.addConstraint(Sketcher.Constraint("Horizontal", 4))
sketch15.addConstraint(Sketcher.Constraint("Vertical", 5))
sketch15.addConstraint(Sketcher.Constraint("Coincident", 0, 3, -1, 1))
sketch15.addConstraint(Sketcher.Constraint("Equal", 0, 2))
sketch15.addConstraint(Sketcher.Constraint("PointOnObject", 2, 3, -1))
sketch15.addConstraint(Sketcher.Constraint("PointOnObject", 0, 1, -1))
sketch15.addConstraint(Sketcher.Constraint("Radius", 0, 12.5))
sketch15.addConstraint(Sketcher.Constraint("DistanceX", 4, 2, 4, 1, 13.5))
sketch15.addConstraint(Sketcher.Constraint("DistanceX", 1, 1, 1, 2, 6.112698))
sketch15.addConstraint(Sketcher.Constraint("DistanceY", 5, 2, 5, 1, 9.5464))
sketch15.addConstraint(Sketcher.Constraint("Radius", 3, 10.686192))
sketch15.addConstraint(Sketcher.Constraint("DistanceX", -1, 1, 3, 3, 23.924028))
pad15 = body.newObject("PartDesign::Pad", "Pad014")
pad15.Profile = sketch15
pad15.Length = 2

sketch16 = body.newObject("Sketcher::SketchObject", "Sketch015")
sketch16.AttachmentSupport = (doc.getObject("XY_Plane"), [""])
sketch16.MapMode = "FlatFace"
sketch16.AttachmentOffset = App.Placement(V(0, 0, 28.25), App.Rotation())
sketch16.addGeometry(Part.ArcOfCircle(Part.Circle(V(0, 0, 0), V(0, 0, 1), 13), math.radians(0), math.radians(91)), False)
sketch16.addGeometry(Part.LineSegment(V(12, 0, 0), V(19, 0, 0)), False)
sketch16.addGeometry(Part.ArcOfCircle(Part.Circle(V(31, 0, 0), V(0, 0, 1), 12), math.radians(108), math.radians(180)), False)
sketch16.addGeometry(Part.ArcOfCircle(Part.Circle(V(24, 22, 0), V(0, 0, 1), 11), math.radians(-180), math.radians(-72)), False)
sketch16.addGeometry(Part.LineSegment(V(13, 22, 0), V(0, 22, 0)), False)
sketch16.addGeometry(Part.LineSegment(V(0, 22, 0), V(0, 12, 0)), False)
sketch16.addConstraint(Sketcher.Constraint("Coincident", 0, 1, 1, 1))
sketch16.addConstraint(Sketcher.Constraint("Coincident", 1, 2, 2, 2))
sketch16.addConstraint(Sketcher.Constraint("Tangent", 2, 1, 3, 2))
sketch16.addConstraint(Sketcher.Constraint("Coincident", 3, 1, 4, 1))
sketch16.addConstraint(Sketcher.Constraint("Coincident", 4, 2, 5, 1))
sketch16.addConstraint(Sketcher.Constraint("Coincident", 5, 2, 0, 2))
sketch16.addConstraint(Sketcher.Constraint("Horizontal", 1))
sketch16.addConstraint(Sketcher.Constraint("Horizontal", 4))
sketch16.addConstraint(Sketcher.Constraint("Vertical", 5))
sketch16.addConstraint(Sketcher.Constraint("Coincident", 0, 3, -1, 1))
sketch16.addConstraint(Sketcher.Constraint("Equal", 0, 2))
sketch16.addConstraint(Sketcher.Constraint("PointOnObject", 2, 3, -1))
sketch16.addConstraint(Sketcher.Constraint("PointOnObject", 0, 1, -1))
sketch16.addConstraint(Sketcher.Constraint("Radius", 0, 12.5))
sketch16.addConstraint(Sketcher.Constraint("DistanceX", 4, 2, 4, 1, 13.5))
sketch16.addConstraint(Sketcher.Constraint("DistanceX", 1, 1, 1, 2, 6.112698))
sketch16.addConstraint(Sketcher.Constraint("DistanceY", 5, 2, 5, 1, 9.5464))
sketch16.addConstraint(Sketcher.Constraint("Radius", 3, 10.686192))
sketch16.addConstraint(Sketcher.Constraint("DistanceX", -1, 1, 3, 3, 23.924028))
pad16 = body.newObject("PartDesign::Pad", "Pad015")
pad16.Profile = sketch16
pad16.Length = 2

sketch17 = body.newObject("Sketcher::SketchObject", "Sketch016")
sketch17.AttachmentSupport = (doc.getObject("XY_Plane"), [""])
sketch17.MapMode = "FlatFace"
sketch17.AttachmentOffset = App.Placement(V(0, 0, 42.75), App.Rotation())
add_polygon(sketch17, [(13.2, 16), (13.2, 14), (-0.3, 14), (-0.3, 16)])
sketch17.addConstraint(Sketcher.Constraint("Vertical", 0))
sketch17.addConstraint(Sketcher.Constraint("Horizontal", 1))
sketch17.addConstraint(Sketcher.Constraint("Vertical", 2))
sketch17.addConstraint(Sketcher.Constraint("Horizontal", 3))
sketch17.addConstraint(Sketcher.Constraint("DistanceY", 0, 2, 0, 1, 2.0))
sketch17.addConstraint(Sketcher.Constraint("DistanceX", 1, 2, 1, 1, 13.5))
sketch17.addConstraint(Sketcher.Constraint("DistanceY", -1, 1, 0, 2, 14.043651))
sketch17.addConstraint(Sketcher.Constraint("DistanceX", -1, 1, 0, 2, 13.237836))
pad17 = body.newObject("PartDesign::Pad", "Pad016")
pad17.Profile = sketch17
pad17.Length = 12.5
pad17.Reversed = True

sketch18 = body.newObject("Sketcher::SketchObject", "Sketch017")
sketch18.AttachmentSupport = (doc.getObject("XY_Plane"), [""])
sketch18.MapMode = "FlatFace"
sketch18.AttachmentOffset = App.Placement(V(0, 0, 63), App.Rotation())
sketch18.addGeometry(Part.LineSegment(V(44, 12, 0), V(31, 12, 0)), False)
sketch18.addGeometry(Part.ArcOfCircle(Part.Circle(V(31, 0, 0), V(0, 0, 1), 12), math.radians(0), math.radians(90)), False)
sketch18.addGeometry(Part.LineSegment(V(44, 0, 0), V(44, 12, 0)), False)
sketch18.addConstraint(Sketcher.Constraint("Tangent", 0, 2, 1, 2))
sketch18.addConstraint(Sketcher.Constraint("Tangent", 1, 1, 2, 1))
sketch18.addConstraint(Sketcher.Constraint("Coincident", 2, 2, 0, 1))
sketch18.addConstraint(Sketcher.Constraint("Horizontal", 0))
sketch18.addConstraint(Sketcher.Constraint("Vertical", 2))
sketch18.addConstraint(Sketcher.Constraint("PointOnObject", 1, 3, -1))
sketch18.addConstraint(Sketcher.Constraint("Radius", 1, 12.5))
sketch18.addConstraint(Sketcher.Constraint("DistanceX", -1, 1, 1, 3, 31.112698))
pad18 = body.newObject("PartDesign::Pad", "Pad017")
pad18.Profile = sketch18
pad18.Length = 10

sketch19 = body.newObject("Sketcher::SketchObject", "Sketch018")
sketch19.AttachmentSupport = (doc.getObject("XY_Plane"), [""])
sketch19.MapMode = "FlatFace"
sketch19.addGeometry(Part.LineSegment(V(44, 12, 0), V(31, 12, 0)), False)
sketch19.addGeometry(Part.ArcOfCircle(Part.Circle(V(31, 0, 0), V(0, 0, 1), 12), math.radians(0), math.radians(90)), False)
sketch19.addGeometry(Part.LineSegment(V(44, 0, 0), V(44, 12, 0)), False)
sketch19.addConstraint(Sketcher.Constraint("Tangent", 0, 2, 1, 2))
sketch19.addConstraint(Sketcher.Constraint("Tangent", 1, 1, 2, 1))
sketch19.addConstraint(Sketcher.Constraint("Coincident", 2, 2, 0, 1))
sketch19.addConstraint(Sketcher.Constraint("Horizontal", 0))
sketch19.addConstraint(Sketcher.Constraint("Vertical", 2))
sketch19.addConstraint(Sketcher.Constraint("PointOnObject", 1, 3, -1))
sketch19.addConstraint(Sketcher.Constraint("Radius", 1, 12.5))
sketch19.addConstraint(Sketcher.Constraint("DistanceX", -1, 1, 1, 3, 31.112698))
pad19 = body.newObject("PartDesign::Pad", "Pad018")
pad19.Profile = sketch19
pad19.Length = 10

sketch20 = body.newObject("Sketcher::SketchObject", "Sketch019")
sketch20.AttachmentSupport = (doc.getObject("XY_Plane"), [""])
sketch20.MapMode = "FlatFace"
sketch20.AttachmentOffset = App.Placement(V(0, 0, 36.5), App.Rotation())
sketch20.addGeometry(Part.LineSegment(V(44, 12, 0), V(31, 12, 0)), False)
sketch20.addGeometry(Part.ArcOfCircle(Part.Circle(V(31, 0, 0), V(0, 0, 1), 12), math.radians(0), math.radians(90)), False)
sketch20.addGeometry(Part.LineSegment(V(44, 0, 0), V(44, 12, 0)), False)
sketch20.addConstraint(Sketcher.Constraint("Tangent", 0, 2, 1, 2))
sketch20.addConstraint(Sketcher.Constraint("Tangent", 1, 1, 2, 1))
sketch20.addConstraint(Sketcher.Constraint("Coincident", 2, 2, 0, 1))
sketch20.addConstraint(Sketcher.Constraint("Horizontal", 0))
sketch20.addConstraint(Sketcher.Constraint("Vertical", 2))
sketch20.addConstraint(Sketcher.Constraint("PointOnObject", 1, 3, -1))
sketch20.addConstraint(Sketcher.Constraint("Radius", 1, 12.5))
sketch20.addConstraint(Sketcher.Constraint("DistanceX", -1, 1, 1, 3, 31.112698))
pad20 = body.newObject("PartDesign::Pad", "Pad019")
pad20.Profile = sketch20
pad20.Length = 10
pad20.Midplane = True

sketch21 = body.newObject("Sketcher::SketchObject", "Sketch020")
sketch21.AttachmentSupport = (doc.getObject("XZ_Plane"), [""])
sketch21.MapMode = "FlatFace"
sketch21.AttachmentOffset = App.Placement(V(0, 0, -12.5), App.Rotation())
add_polygon(sketch21, [(43.6, 65.8), (40.6, 64), (40.6, 72), (43.6, 70.2)])
add_polygon(sketch21, [(43.6, 34.2), (40.6, 32.5), (40.6, 40.5), (43.6, 38.8)])
add_polygon(sketch21, [(43.6, 7.2), (43.6, 2.8), (40.6, 1), (40.6, 9)])
sketch21.addConstraint(Sketcher.Constraint("Vertical", 1))
sketch21.addConstraint(Sketcher.Constraint("Vertical", 3))
sketch21.addConstraint(Sketcher.Constraint("Vertical", 5))
sketch21.addConstraint(Sketcher.Constraint("Vertical", 7))
sketch21.addConstraint(Sketcher.Constraint("Vertical", 8))
sketch21.addConstraint(Sketcher.Constraint("Vertical", 10))
sketch21.addConstraint(Sketcher.Constraint("Parallel", 0, 4))
sketch21.addConstraint(Sketcher.Constraint("Parallel", 2, 6))
sketch21.addConstraint(Sketcher.Constraint("Parallel", 4, 9))
sketch21.addConstraint(Sketcher.Constraint("Parallel", 6, 11))
sketch21.addConstraint(Sketcher.Constraint("Vertical", 1, 2, 4, 2))
sketch21.addConstraint(Sketcher.Constraint("Vertical", 3, 2, 6, 2))
sketch21.addConstraint(Sketcher.Constraint("Vertical", 7, 2, 8, 2))
sketch21.addConstraint(Sketcher.Constraint("Vertical", 5, 2, 9, 2))
sketch21.addConstraint(Sketcher.Constraint("Equal", 1, 5))
sketch21.addConstraint(Sketcher.Constraint("Equal", 7, 8))
sketch21.addConstraint(Sketcher.Constraint("Equal", 0, 2))
sketch21.addConstraint(Sketcher.Constraint("DistanceY", 1, 1, 1, 2, 8.0))
sketch21.addConstraint(Sketcher.Constraint("DistanceY", 3, 2, 3, 1, 4.5))
sketch21.addConstraint(Sketcher.Constraint("DistanceY", -1, 1, 0, 2, 64.0))
sketch21.addConstraint(Sketcher.Constraint("DistanceY", -1, 1, 9, 2, 1.0))
sketch21.addConstraint(Sketcher.Constraint("DistanceX", 1, 2, 2, 2, 3.0))
sketch21.addConstraint(Sketcher.Constraint("DistanceY", 6, 2, 3, 2, 27.0))
sketch21.addConstraint(Sketcher.Constraint("DistanceX", -1, 1, 0, 2, 40.612698))
pocket1 = body.newObject("PartDesign::Pocket", "Pocket")
pocket1.Profile = sketch21
pocket1.Length = 5
pocket1.Reversed = True

doc.recompute()
